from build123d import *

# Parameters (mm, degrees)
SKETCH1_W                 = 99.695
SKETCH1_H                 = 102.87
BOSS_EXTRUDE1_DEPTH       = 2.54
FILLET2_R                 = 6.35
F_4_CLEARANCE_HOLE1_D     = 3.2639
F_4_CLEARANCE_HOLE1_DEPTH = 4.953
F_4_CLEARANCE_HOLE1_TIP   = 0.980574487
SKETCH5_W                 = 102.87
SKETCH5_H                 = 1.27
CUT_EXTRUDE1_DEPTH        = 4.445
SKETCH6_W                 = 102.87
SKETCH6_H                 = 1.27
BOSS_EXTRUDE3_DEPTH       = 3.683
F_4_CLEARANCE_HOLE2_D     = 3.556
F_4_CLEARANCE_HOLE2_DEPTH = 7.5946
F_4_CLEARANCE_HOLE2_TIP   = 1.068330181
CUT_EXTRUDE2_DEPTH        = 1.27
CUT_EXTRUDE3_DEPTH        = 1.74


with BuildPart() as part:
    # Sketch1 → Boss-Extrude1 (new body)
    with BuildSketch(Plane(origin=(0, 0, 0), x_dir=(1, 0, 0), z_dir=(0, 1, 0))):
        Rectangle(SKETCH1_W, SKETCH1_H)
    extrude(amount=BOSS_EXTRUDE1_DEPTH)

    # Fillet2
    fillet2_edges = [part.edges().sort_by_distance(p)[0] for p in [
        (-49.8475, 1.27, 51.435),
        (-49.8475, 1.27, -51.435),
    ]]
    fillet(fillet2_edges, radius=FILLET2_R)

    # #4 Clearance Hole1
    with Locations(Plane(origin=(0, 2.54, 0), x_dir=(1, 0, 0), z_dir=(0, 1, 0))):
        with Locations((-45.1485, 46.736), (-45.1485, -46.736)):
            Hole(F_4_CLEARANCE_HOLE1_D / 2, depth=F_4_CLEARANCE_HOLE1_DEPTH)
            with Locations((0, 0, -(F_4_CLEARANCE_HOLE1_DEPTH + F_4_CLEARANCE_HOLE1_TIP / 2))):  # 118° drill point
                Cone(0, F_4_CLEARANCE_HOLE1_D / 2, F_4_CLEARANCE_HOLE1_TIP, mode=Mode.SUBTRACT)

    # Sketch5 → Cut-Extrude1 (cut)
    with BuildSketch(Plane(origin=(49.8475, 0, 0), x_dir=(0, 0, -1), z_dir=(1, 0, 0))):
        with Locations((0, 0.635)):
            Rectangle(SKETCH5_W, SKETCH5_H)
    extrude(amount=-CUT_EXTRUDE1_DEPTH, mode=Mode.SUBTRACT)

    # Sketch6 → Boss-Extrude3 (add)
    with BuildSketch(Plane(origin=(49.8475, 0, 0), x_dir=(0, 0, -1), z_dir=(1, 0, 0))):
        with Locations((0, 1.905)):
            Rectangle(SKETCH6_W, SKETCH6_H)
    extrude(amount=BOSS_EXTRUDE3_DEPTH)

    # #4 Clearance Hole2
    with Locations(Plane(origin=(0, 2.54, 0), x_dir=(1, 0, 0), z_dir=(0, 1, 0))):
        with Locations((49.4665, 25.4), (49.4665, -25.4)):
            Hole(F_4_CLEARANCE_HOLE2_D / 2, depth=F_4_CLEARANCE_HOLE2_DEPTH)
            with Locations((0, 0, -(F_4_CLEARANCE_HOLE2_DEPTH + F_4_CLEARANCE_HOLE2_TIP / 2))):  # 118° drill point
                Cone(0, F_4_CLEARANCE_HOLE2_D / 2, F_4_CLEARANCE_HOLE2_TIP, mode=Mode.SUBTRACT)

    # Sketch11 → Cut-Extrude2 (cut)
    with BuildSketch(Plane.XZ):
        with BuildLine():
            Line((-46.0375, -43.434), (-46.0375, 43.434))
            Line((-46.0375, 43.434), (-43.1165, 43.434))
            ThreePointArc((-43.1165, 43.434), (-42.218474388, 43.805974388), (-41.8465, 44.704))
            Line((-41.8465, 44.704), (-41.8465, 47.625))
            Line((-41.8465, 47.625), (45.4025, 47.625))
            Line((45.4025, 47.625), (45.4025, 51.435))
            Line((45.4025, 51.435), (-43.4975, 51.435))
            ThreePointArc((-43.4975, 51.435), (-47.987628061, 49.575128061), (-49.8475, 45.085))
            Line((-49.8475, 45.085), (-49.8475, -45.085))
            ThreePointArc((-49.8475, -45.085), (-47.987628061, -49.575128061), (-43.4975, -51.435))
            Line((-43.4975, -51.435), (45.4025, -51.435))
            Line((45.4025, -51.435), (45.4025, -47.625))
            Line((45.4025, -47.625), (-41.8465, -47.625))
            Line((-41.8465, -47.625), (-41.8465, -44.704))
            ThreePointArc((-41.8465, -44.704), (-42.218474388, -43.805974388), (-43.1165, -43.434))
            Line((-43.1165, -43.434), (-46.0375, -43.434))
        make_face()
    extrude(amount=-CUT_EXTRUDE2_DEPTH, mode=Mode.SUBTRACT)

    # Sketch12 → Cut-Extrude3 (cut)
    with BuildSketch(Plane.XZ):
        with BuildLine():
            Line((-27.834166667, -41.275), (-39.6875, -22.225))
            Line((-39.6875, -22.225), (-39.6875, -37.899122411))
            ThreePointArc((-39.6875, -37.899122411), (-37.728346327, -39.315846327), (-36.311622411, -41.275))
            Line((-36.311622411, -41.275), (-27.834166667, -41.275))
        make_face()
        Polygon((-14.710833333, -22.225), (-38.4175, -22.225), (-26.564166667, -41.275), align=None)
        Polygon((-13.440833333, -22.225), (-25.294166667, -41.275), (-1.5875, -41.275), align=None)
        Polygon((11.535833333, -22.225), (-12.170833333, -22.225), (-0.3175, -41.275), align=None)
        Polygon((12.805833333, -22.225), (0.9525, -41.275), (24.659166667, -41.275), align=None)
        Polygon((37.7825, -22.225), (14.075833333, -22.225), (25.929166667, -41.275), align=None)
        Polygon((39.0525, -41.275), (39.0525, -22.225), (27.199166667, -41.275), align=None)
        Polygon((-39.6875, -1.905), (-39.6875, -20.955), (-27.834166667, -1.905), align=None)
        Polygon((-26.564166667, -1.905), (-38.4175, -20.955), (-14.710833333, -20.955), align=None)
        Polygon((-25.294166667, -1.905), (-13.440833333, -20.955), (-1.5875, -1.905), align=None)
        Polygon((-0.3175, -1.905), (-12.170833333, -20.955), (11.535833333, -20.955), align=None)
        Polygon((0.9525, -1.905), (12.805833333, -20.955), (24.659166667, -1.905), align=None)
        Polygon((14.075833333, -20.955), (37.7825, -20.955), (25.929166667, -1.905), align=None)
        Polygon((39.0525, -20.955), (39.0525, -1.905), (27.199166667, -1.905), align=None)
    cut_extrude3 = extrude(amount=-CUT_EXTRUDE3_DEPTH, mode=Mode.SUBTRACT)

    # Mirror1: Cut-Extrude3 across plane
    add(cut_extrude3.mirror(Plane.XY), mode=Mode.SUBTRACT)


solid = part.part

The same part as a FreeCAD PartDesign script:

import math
import FreeCAD as App
import Part
import Sketcher
Q = App.Units.Quantity


def edges_at(feature, points):
    """Names of the edges that pass closest to the given points."""
    edges = feature.Shape.Edges
    near = lambda p: min(range(len(edges)), key=lambda i: edges[i].distToShape(Part.Vertex(*p))[0])
    return sorted({f"Edge{near(p) + 1}" for p in points})

doc = App.newDocument("Part")
body = doc.addObject("PartDesign::Body", "Body")

# Sketch on XZ plane
sketch1 = body.newObject("Sketcher::SketchObject", "Sketch")
sketch1.AttachmentSupport = (doc.getObject("XZ_Plane"), [""])
sketch1.MapMode = "FlatFace"
sketch1.addGeometry([
    Part.LineSegment(App.Vector(-50, -51, 0), App.Vector(-50, 51, 0)),
    Part.LineSegment(App.Vector(-50, 51, 0), App.Vector(50, 51, 0)),
    Part.LineSegment(App.Vector(50, 51, 0), App.Vector(50, -51, 0)),
    Part.LineSegment(App.Vector(50, -51, 0), App.Vector(-50, -51, 0)),
], False)
sketch1.addConstraint([
    Sketcher.Constraint("Coincident", 0, 2, 1, 1),
    Sketcher.Constraint("Coincident", 1, 2, 2, 1),
    Sketcher.Constraint("Coincident", 2, 2, 3, 1),
    Sketcher.Constraint("Coincident", 3, 2, 0, 1),
    Sketcher.Constraint("Vertical", 0),
    Sketcher.Constraint("Horizontal", 1),
    Sketcher.Constraint("Vertical", 2),
    Sketcher.Constraint("Horizontal", 3),
    Sketcher.Constraint("Symmetric", 0, 2, 2, 2, -1, 1),
    Sketcher.Constraint("DistanceY", 0, 1, 0, 2, Q("4.05 in")),
    Sketcher.Constraint("DistanceX", 1, 1, 1, 2, Q("3.925 in")),
])
pad1 = body.newObject("PartDesign::Pad", "Pad")
pad1.Profile = sketch1
pad1.Length = Q("0.1 in")
pad1.Reversed = True
doc.recompute()

fillet = body.newObject("PartDesign::Fillet", "Fillet")
fillet.Base = (pad1, edges_at(pad1, [(-49.847, 1.27, 51.435), (-49.847, 1.27, -51.435)]))
fillet.Radius = Q("0.25 in")

# Sketch on XZ plane
sketch2 = body.newObject("Sketcher::SketchObject", "Sketch001")
sketch2.AttachmentSupport = (doc.getObject("XZ_Plane"), [""])
sketch2.MapMode = "FlatFace"
sketch2.AttachmentOffset = App.Placement(App.Vector(0, 0, -0.1 * 25.4), App.Rotation())
sketch2.addGeometry([
    Part.Circle(App.Vector(-45.1, -46.7, 0), App.Vector(0, 0, 1), 1.6),
    Part.Circle(App.Vector(-45.1, 46.7, 0), App.Vector(0, 0, 1), 1.6),
], False)
sketch2.addConstraint([
    Sketcher.Constraint("Equal", 0, 1),
    Sketcher.Constraint("Symmetric", 0, 3, 1, 3, -1),
    Sketcher.Constraint("Diameter", 0, Q("0.1285 in")),
    Sketcher.Constraint("DistanceY", 0, 3, -1, 1, Q("1.84 in")),
    Sketcher.Constraint("DistanceX", 0, 3, -1, 1, Q("1.7775 in")),
])
doc.recompute()
hole = body.newObject("PartDesign::Hole", "Hole")
hole.Profile = sketch2
hole.ThreadType = "None"
hole.Diameter = Q("0.1285 in")
hole.DepthType = "Dimension"
hole.Depth = Q("0.195 in")
hole.DrillPoint = "Angled"
hole.DrillPointAngle = 118
hole.Reversed = True

# Sketch on YZ plane
sketch3 = body.newObject("Sketcher::SketchObject", "Sketch002")
sketch3.AttachmentSupport = (doc.getObject("YZ_Plane"), [""])
sketch3.MapMode = "FlatFace"
sketch3.AttachmentOffset = App.Placement(App.Vector(0, 0, 1.9625 * 25.4), App.Rotation())
sketch3.addGeometry([
    Part.LineSegment(App.Vector(1.3, 51.4, 0), App.Vector(0, 51.4, 0)),
    Part.LineSegment(App.Vector(0, 51.4, 0), App.Vector(0, -51.4, 0)),
    Part.LineSegment(App.Vector(0, -51.4, 0), App.Vector(1.3, -51.4, 0)),
    Part.LineSegment(App.Vector(1.3, -51.4, 0), App.Vector(1.3, 51.4, 0)),
], False)
sketch3.addConstraint([
    Sketcher.Constraint("Coincident", 0, 2, 1, 1),
    Sketcher.Constraint("Coincident", 1, 2, 2, 1),
    Sketcher.Constraint("Coincident", 2, 2, 3, 1),
    Sketcher.Constraint("Coincident", 3, 2, 0, 1),
    Sketcher.Constraint("Horizontal", 0),
    Sketcher.Constraint("Vertical", 1),
    Sketcher.Constraint("Horizontal", 2),
    Sketcher.Constraint("Vertical", 3),
    Sketcher.Constraint("Symmetric", 0, 2, 1, 2, -1, 1),
    Sketcher.Constraint("DistanceX", 0, 2, 0, 1, Q("0.05 in")),
    Sketcher.Constraint("DistanceY", 1, 2, 1, 1, Q("4.05 in")),
])
pocket1 = body.newObject("PartDesign::Pocket", "Pocket")
pocket1.Profile = sketch3
pocket1.Length = Q("0.175 in")

# Sketch on YZ plane
sketch4 = body.newObject("Sketcher::SketchObject", "Sketch003")
sketch4.AttachmentSupport = (doc.getObject("YZ_Plane"), [""])
sketch4.MapMode = "FlatFace"
sketch4.AttachmentOffset = App.Placement(App.Vector(0, 0, 1.9625 * 25.4), App.Rotation())
sketch4.addGeometry([
    Part.LineSegment(App.Vector(2.5, 51.4, 0), App.Vector(1.3, 51.4, 0)),
    Part.LineSegment(App.Vector(1.3, 51.4, 0), App.Vector(1.3, -51.4, 0)),
    Part.LineSegment(App.Vector(1.3, -51.4, 0), App.Vector(2.5, -51.4, 0)),
    Part.LineSegment(App.Vector(2.5, -51.4, 0), App.Vector(2.5, 51.4, 0)),
], False)
sketch4.addConstraint([
    Sketcher.Constraint("Coincident", 0, 2, 1, 1),
    Sketcher.Constraint("Coincident", 1, 2, 2, 1),
    Sketcher.Constraint("Coincident", 2, 2, 3, 1),
    Sketcher.Constraint("Coincident", 3, 2, 0, 1),
    Sketcher.Constraint("Horizontal", 0),
    Sketcher.Constraint("Vertical", 1),
    Sketcher.Constraint("Horizontal", 2),
    Sketcher.Constraint("Vertical", 3),
    Sketcher.Constraint("DistanceX", 0, 2, 0, 1, Q("0.05 in")),
    Sketcher.Constraint("DistanceY", 1, 2, 1, 1, Q("4.05 in")),
    Sketcher.Constraint("DistanceX", -1, 1, 2, 2, Q("0.1 in")),
    Sketcher.Constraint("DistanceY", -1, 1, 0, 2, Q("2.025 in")),
])
pad2 = body.newObject("PartDesign::Pad", "Pad001")
pad2.Profile = sketch4
pad2.Length = Q("0.145 in")

# Sketch on XZ plane
sketch5 = body.newObject("Sketcher::SketchObject", "Sketch004")
sketch5.AttachmentSupport = (doc.getObject("XZ_Plane"), [""])
sketch5.MapMode = "FlatFace"
sketch5.AttachmentOffset = App.Placement(App.Vector(0, 0, -0.1 * 25.4), App.Rotation())
sketch5.addGeometry([
    Part.Circle(App.Vector(49.5, -25.4, 0), App.Vector(0, 0, 1), 1.8),
    Part.Circle(App.Vector(49.5, 25.4, 0), App.Vector(0, 0, 1), 1.8),
], False)
sketch5.addConstraint([
    Sketcher.Constraint("Equal", 0, 1),
    Sketcher.Constraint("Symmetric", 0, 3, 1, 3, -1),
    Sketcher.Constraint("Diameter", 0, Q("0.14 in")),
    Sketcher.Constraint("DistanceY", 0, 3, -1, 1, Q("1 in")),
    Sketcher.Constraint("DistanceX", -1, 1, 0, 3, Q("1.9475 in")),
])
doc.recompute()
hole2 = body.newObject("PartDesign::Hole", "Hole001")
hole2.Profile = sketch5
hole2.ThreadType = "None"
hole2.Diameter = Q("0.14 in")
hole2.DepthType = "Dimension"
hole2.Depth = Q("0.299 in")
hole2.DrillPoint = "Angled"
hole2.DrillPointAngle = 118
hole2.Reversed = True

# Sketch on XZ plane
sketch6 = body.newObject("Sketcher::SketchObject", "Sketch005")
sketch6.AttachmentSupport = (doc.getObject("XZ_Plane"), [""])
sketch6.MapMode = "FlatFace"
sketch6.addGeometry([
    Part.LineSegment(App.Vector(-46, -43.4, 0), App.Vector(-46, 43.4, 0)),  # 0
    Part.LineSegment(App.Vector(-46, 43.4, 0), App.Vector(-43.1, 43.4, 0)),  # 1
    Part.ArcOfCircle(Part.Circle(App.Vector(-43.1, 44.7, 0), App.Vector(0, 0, 1), 1.3), math.radians(-90), math.radians(0)),  # 2
    Part.LineSegment(App.Vector(-41.8, 44.7, 0), App.Vector(-41.8, 47.6, 0)),  # 3
    Part.LineSegment(App.Vector(-41.8, 47.6, 0), App.Vector(45.4, 47.6, 0)),  # 4
    Part.LineSegment(App.Vector(45.4, 47.6, 0), App.Vector(45.4, 51.4, 0)),  # 5
    Part.LineSegment(App.Vector(45.4, 51.4, 0), App.Vector(-43.5, 51.4, 0)),  # 6
    Part.ArcOfCircle(Part.Circle(App.Vector(-43.5, 45.1, 0), App.Vector(0, 0, 1), 6.3), math.radians(90), math.radians(180)),  # 7
    Part.LineSegment(App.Vector(-49.8, 45.1, 0), App.Vector(-49.8, -45.1, 0)),  # 8
    Part.ArcOfCircle(Part.Circle(App.Vector(-43.5, -45.1, 0), App.Vector(0, 0, 1), 6.3), math.radians(180), math.radians(270)),  # 9
    Part.LineSegment(App.Vector(-43.5, -51.4, 0), App.Vector(45.4, -51.4, 0)),  # 10
    Part.LineSegment(App.Vector(45.4, -51.4, 0), App.Vector(45.4, -47.6, 0)),  # 11
    Part.LineSegment(App.Vector(45.4, -47.6, 0), App.Vector(-41.8, -47.6, 0)),  # 12
    Part.LineSegment(App.Vector(-41.8, -47.6, 0), App.Vector(-41.8, -44.7, 0)),  # 13
    Part.ArcOfCircle(Part.Circle(App.Vector(-43.1, -44.7, 0), App.Vector(0, 0, 1), 1.3), math.radians(0), math.radians(90)),  # 14
    Part.LineSegment(App.Vector(-43.1, -43.4, 0), App.Vector(-46, -43.4, 0)),  # 15
], False)
sketch6.addConstraint([
    Sketcher.Constraint("Coincident", 0, 2, 1, 1),
    Sketcher.Constraint("Tangent", 1, 2, 2, 1),
    Sketcher.Constraint("Tangent", 2, 2, 3, 1),
    Sketcher.Constraint("Coincident", 3, 2, 4, 1),
    Sketcher.Constraint("Coincident", 4, 2, 5, 1),
    Sketcher.Constraint("Coincident", 5, 2, 6, 1),
    Sketcher.Constraint("Tangent", 6, 2, 7, 1),
    Sketcher.Constraint("Tangent", 7, 2, 8, 1),
    Sketcher.Constraint("Tangent", 8, 2, 9, 1),
    Sketcher.Constraint("Tangent", 9, 2, 10, 1),
    Sketcher.Constraint("Coincident", 10, 2, 11, 1),
    Sketcher.Constraint("Coincident", 11, 2, 12, 1),
    Sketcher.Constraint("Coincident", 12, 2, 13, 1),
    Sketcher.Constraint("Tangent", 13, 2, 14, 1),
    Sketcher.Constraint("Tangent", 14, 2, 15, 1),
    Sketcher.Constraint("Coincident", 15, 2, 0, 1),
    Sketcher.Constraint("Vertical", 0),
    Sketcher.Constraint("Horizontal", 1),
    Sketcher.Constraint("Vertical", 3),
    Sketcher.Constraint("Horizontal", 4),
    Sketcher.Constraint("Vertical", 5),
    Sketcher.Constraint("Horizontal", 6),
    Sketcher.Constraint("Vertical", 8),
    Sketcher.Constraint("Horizontal", 10),
    Sketcher.Constraint("Vertical", 11),
    Sketcher.Constraint("Horizontal", 12),
    Sketcher.Constraint("Vertical", 13),
    Sketcher.Constraint("Horizontal", 15),
    Sketcher.Constraint("Equal", 7, 9),
    Sketcher.Constraint("Equal", 2, 14),
    Sketcher.Constraint("Symmetric", 2, 3, 14, 3, -1),
    Sketcher.Constraint("Symmetric", 5, 2, 10, 2, -1),
    Sketcher.Constraint("Equal", 15, 3),
    Sketcher.Constraint("Equal", 5, 11),
    Sketcher.Constraint("Radius", 2, Q("0.05 in")),
    Sketcher.Constraint("Radius", 7, Q("0.25 in")),
    Sketcher.Constraint("DistanceX", 6, 2, 6, 1, Q("3.5 in")),
    Sketcher.Constraint("DistanceY", 0, 1, 0, 2, Q("3.42 in")),
    Sketcher.Constraint("DistanceY", 5, 1, 5, 2, Q("0.15 in")),
    Sketcher.Constraint("DistanceY", 8, 2, 8, 1, Q("3.55 in")),
    Sketcher.Constraint("DistanceX", 0, 2, 7, 3, Q("0.1 in")),
    Sketcher.Constraint("DistanceX", 0, 2, -1, 1, Q("1.8125 in")),
])
pocket2 = body.newObject("PartDesign::Pocket", "Pocket001")
pocket2.Profile = sketch6
pocket2.Length = Q("0.05 in")

# Sketch on XZ plane
sketch7 = body.newObject("Sketcher::SketchObject", "Sketch006")
sketch7.AttachmentSupport = (doc.getObject("XZ_Plane"), [""])
sketch7.MapMode = "FlatFace"
sketch7.addGeometry([
    Part.LineSegment(App.Vector(-27.8, -41.3, 0), App.Vector(-39.7, -22.2, 0)),  # 0
    Part.LineSegment(App.Vector(-39.7, -22.2, 0), App.Vector(-39.7, -37.9, 0)),  # 1
    Part.ArcOfCircle(Part.Circle(App.Vector(-43.1, -44.7, 0), App.Vector(0, 0, 1), 7.6), math.radians(27), math.radians(63)),  # 2
    Part.LineSegment(App.Vector(-36.3, -41.3, 0), App.Vector(-27.8, -41.3, 0)),  # 3
    Part.LineSegment(App.Vector(-14.7, -22.2, 0), App.Vector(-38.4, -22.2, 0)),  # 4
    Part.LineSegment(App.Vector(-38.4, -22.2, 0), App.Vector(-26.6, -41.3, 0)),  # 5
    Part.LineSegment(App.Vector(-26.6, -41.3, 0), App.Vector(-14.7, -22.2, 0)),  # 6
    Part.LineSegment(App.Vector(-13.4, -22.2, 0), App.Vector(-25.3, -41.3, 0)),  # 7
    Part.LineSegment(App.Vector(-25.3, -41.3, 0), App.Vector(-1.6, -41.3, 0)),  # 8
    Part.LineSegment(App.Vector(-1.6, -41.3, 0), App.Vector(-13.4, -22.2, 0)),  # 9
    Part.LineSegment(App.Vector(11.5, -22.2, 0), App.Vector(-12.2, -22.2, 0)),  # 10
    Part.LineSegment(App.Vector(-12.2, -22.2, 0), App.Vector(-0.3, -41.3, 0)),  # 11
    Part.LineSegment(App.Vector(-0.3, -41.3, 0), App.Vector(11.5, -22.2, 0)),  # 12
    Part.LineSegment(App.Vector(12.8, -22.2, 0), App.Vector(1, -41.3, 0)),  # 13
    Part.LineSegment(App.Vector(1, -41.3, 0), App.Vector(24.7, -41.3, 0)),  # 14
    Part.LineSegment(App.Vector(24.7, -41.3, 0), App.Vector(12.8, -22.2, 0)),  # 15
    Part.LineSegment(App.Vector(37.8, -22.2, 0), App.Vector(14.1, -22.2, 0)),  # 16
    Part.LineSegment(App.Vector(14.1, -22.2, 0), App.Vector(25.9, -41.3, 0)),  # 17
    Part.LineSegment(App.Vector(25.9, -41.3, 0), App.Vector(37.8, -22.2, 0)),  # 18
    Part.LineSegment(App.Vector(39.1, -41.3, 0), App.Vector(39.1, -22.2, 0)),  # 19
    Part.LineSegment(App.Vector(39.1, -22.2, 0), App.Vector(27.2, -41.3, 0)),  # 20
    Part.LineSegment(App.Vector(27.2, -41.3, 0), App.Vector(39.1, -41.3, 0)),  # 21
    Part.LineSegment(App.Vector(-39.7, -1.9, 0), App.Vector(-39.7, -21, 0)),  # 22
    Part.LineSegment(App.Vector(-39.7, -21, 0), App.Vector(-27.8, -1.9, 0)),  # 23
    Part.LineSegment(App.Vector(-27.8, -1.9, 0), App.Vector(-39.7, -1.9, 0)),  # 24
    Part.LineSegment(App.Vector(-26.6, -1.9, 0), App.Vector(-38.4, -21, 0)),  # 25
    Part.LineSegment(App.Vector(-38.4, -21, 0), App.Vector(-14.7, -21, 0)),  # 26
    Part.LineSegment(App.Vector(-14.7, -21, 0), App.Vector(-26.6, -1.9, 0)),  # 27
    Part.LineSegment(App.Vector(-25.3, -1.9, 0), App.Vector(-13.4, -21, 0)),  # 28
    Part.LineSegment(App.Vector(-13.4, -21, 0), App.Vector(-1.6, -1.9, 0)),  # 29
    Part.LineSegment(App.Vector(-1.6, -1.9, 0), App.Vector(-25.3, -1.9, 0)),  # 30
    Part.LineSegment(App.Vector(-0.3, -1.9, 0), App.Vector(-12.2, -21, 0)),  # 31
    Part.LineSegment(App.Vector(-12.2, -21, 0), App.Vector(11.5, -21, 0)),  # 32
    Part.LineSegment(App.Vector(11.5, -21, 0), App.Vector(-0.3, -1.9, 0)),  # 33
    Part.LineSegment(App.Vector(1, -1.9, 0), App.Vector(12.8, -21, 0)),  # 34
    Part.LineSegment(App.Vector(12.8, -21, 0), App.Vector(24.7, -1.9, 0)),  # 35
    Part.LineSegment(App.Vector(24.7, -1.9, 0), App.Vector(1, -1.9, 0)),  # 36
    Part.LineSegment(App.Vector(14.1, -21, 0), App.Vector(37.8, -21, 0)),  # 37
    Part.LineSegment(App.Vector(37.8, -21, 0), App.Vector(25.9, -1.9, 0)),  # 38
    Part.LineSegment(App.Vector(25.9, -1.9, 0), App.Vector(14.1, -21, 0)),  # 39
    Part.LineSegment(App.Vector(39.1, -21, 0), App.Vector(39.1, -1.9, 0)),  # 40
    Part.LineSegment(App.Vector(39.1, -1.9, 0), App.Vector(27.2, -1.9, 0)),  # 41
    Part.LineSegment(App.Vector(27.2, -1.9, 0), App.Vector(39.1, -21, 0)),  # 42
], False)
sketch7.addConstraint([
    Sketcher.Constraint("Coincident", 0, 2, 1, 1),
    Sketcher.Constraint("Coincident", 1, 2, 2, 2),
    Sketcher.Constraint("Coincident", 2, 1, 3, 1),
    Sketcher.Constraint("Coincident", 3, 2, 0, 1),
    Sketcher.Constraint("Coincident", 4, 2, 5, 1),
    Sketcher.Constraint("Coincident", 5, 2, 6, 1),
    Sketcher.Constraint("Coincident", 6, 2, 4, 1),
    Sketcher.Constraint("Coincident", 7, 2, 8, 1),
    Sketcher.Constraint("Coincident", 8, 2, 9, 1),
    Sketcher.Constraint("Coincident", 9, 2, 7, 1),
    Sketcher.Constraint("Coincident", 10, 2, 11, 1),
    Sketcher.Constraint("Coincident", 11, 2, 12, 1),
    Sketcher.Constraint("Coincident", 12, 2, 10, 1),
    Sketcher.Constraint("Coincident", 13, 2, 14, 1),
    Sketcher.Constraint("Coincident", 14, 2, 15, 1),
    Sketcher.Constraint("Coincident", 15, 2, 13, 1),
    Sketcher.Constraint("Coincident", 16, 2, 17, 1),
    Sketcher.Constraint("Coincident", 17, 2, 18, 1),
    Sketcher.Constraint("Coincident", 18, 2, 16, 1),
    Sketcher.Constraint("Coincident", 19, 2, 20, 1),
    Sketcher.Constraint("Coincident", 20, 2, 21, 1),
    Sketcher.Constraint("Coincident", 21, 2, 19, 1),
    Sketcher.Constraint("Coincident", 22, 2, 23, 1),
    Sketcher.Constraint("Coincident", 23, 2, 24, 1),
    Sketcher.Constraint("Coincident", 24, 2, 22, 1),
    Sketcher.Constraint("Coincident", 25, 2, 26, 1),
    Sketcher.Constraint("Coincident", 26, 2, 27, 1),
    Sketcher.Constraint("Coincident", 27, 2, 25, 1),
    Sketcher.Constraint("Coincident", 28, 2, 29, 1),
    Sketcher.Constraint("Coincident", 29, 2, 30, 1),
    Sketcher.Constraint("Coincident", 30, 2, 28, 1),
    Sketcher.Constraint("Coincident", 31, 2, 32, 1),
    Sketcher.Constraint("Coincident", 32, 2, 33, 1),
    Sketcher.Constraint("Coincident", 33, 2, 31, 1),
    Sketcher.Constraint("Coincident", 34, 2, 35, 1),
    Sketcher.Constraint("Coincident", 35, 2, 36, 1),
    Sketcher.Constraint("Coincident", 36, 2, 34, 1),
    Sketcher.Constraint("Coincident", 37, 2, 38, 1),
    Sketcher.Constraint("Coincident", 38, 2, 39, 1),
    Sketcher.Constraint("Coincident", 39, 2, 37, 1),
    Sketcher.Constraint("Coincident", 40, 2, 41, 1),
    Sketcher.Constraint("Coincident", 41, 2, 42, 1),
    Sketcher.Constraint("Coincident", 42, 2, 40, 1),
    Sketcher.Constraint("Vertical", 1),
    Sketcher.Constraint("Horizontal", 3),
    Sketcher.Constraint("Horizontal", 4),
    Sketcher.Constraint("Horizontal", 8),
    Sketcher.Constraint("Horizontal", 10),
    Sketcher.Constraint("Horizontal", 14),
    Sketcher.Constraint("Horizontal", 16),
    Sketcher.Constraint("Vertical", 19),
    Sketcher.Constraint("Horizontal", 21),
    Sketcher.Constraint("Vertical", 22),
    Sketcher.Constraint("Horizontal", 24),
    Sketcher.Constraint("Horizontal", 26),
    Sketcher.Constraint("Horizontal", 30),
    Sketcher.Constraint("Horizontal", 32),
    Sketcher.Constraint("Horizontal", 36),
    Sketcher.Constraint("Horizontal", 37),
    Sketcher.Constraint("Vertical", 40),
    Sketcher.Constraint("Horizontal", 41),
    Sketcher.Constraint("Parallel", 0, 5),
    Sketcher.Constraint("Parallel", 6, 7),
    Sketcher.Constraint("Parallel", 5, 9),
    Sketcher.Constraint("Parallel", 9, 11),
    Sketcher.Constraint("Parallel", 7, 12),
    Sketcher.Constraint("Parallel", 12, 13),
    Sketcher.Constraint("Parallel", 11, 15),
    Sketcher.Constraint("Parallel", 15, 17),
    Sketcher.Constraint("Parallel", 13, 18),
    Sketcher.Constraint("Parallel", 18, 20),
    Sketcher.Constraint("Parallel", 20, 23),
    Sketcher.Constraint("Parallel", 23, 25),
    Sketcher.Constraint("Parallel", 17, 27),
    Sketcher.Constraint("Parallel", 27, 28),
    Sketcher.Constraint("Parallel", 25, 29),
    Sketcher.Constraint("Parallel", 29, 31),
    Sketcher.Constraint("Parallel", 28, 33),
    Sketcher.Constraint("Parallel", 33, 34),
    Sketcher.Constraint("Parallel", 31, 35),
    Sketcher.Constraint("Parallel", 34, 38),
    Sketcher.Constraint("Parallel", 35, 39),
    Sketcher.Constraint("Parallel", 38, 42),
    Sketcher.Constraint("Horizontal", 0, 2, 4, 2),
    Sketcher.Constraint("Horizontal", 3, 2, 5, 2),
    Sketcher.Constraint("Horizontal", 5, 2, 7, 2),
    Sketcher.Constraint("Horizontal", 6, 2, 9, 2),
    Sketcher.Constraint("Horizontal", 9, 2, 10, 2),
    Sketcher.Constraint("Horizontal", 8, 2, 11, 2),
    Sketcher.Constraint("Horizontal", 11, 2, 13, 2),
    Sketcher.Constraint("Horizontal", 12, 2, 15, 2),
    Sketcher.Constraint("Horizontal", 15, 2, 16, 2),
    Sketcher.Constraint("Horizontal", 14, 2, 17, 2),
    Sketcher.Constraint("Horizontal", 18, 2, 19, 2),
    Sketcher.Constraint("Horizontal", 17, 2, 20, 2),
    Sketcher.Constraint("Horizontal", 22, 2, 25, 2),
    Sketcher.Constraint("Horizontal", 24, 2, 27, 2),
    Sketcher.Constraint("Horizontal", 26, 2, 28, 2),
    Sketcher.Constraint("Horizontal", 27, 2, 29, 2),
    Sketcher.Constraint("Horizontal", 28, 2, 31, 2),
    Sketcher.Constraint("Horizontal", 30, 2, 33, 2),
    Sketcher.Constraint("Horizontal", 32, 2, 34, 2),
    Sketcher.Constraint("Horizontal", 33, 2, 35, 2),
    Sketcher.Constraint("Horizontal", 34, 2, 37, 2),
    Sketcher.Constraint("Horizontal", 36, 2, 38, 2),
    Sketcher.Constraint("Horizontal", 38, 2, 40, 2),
    Sketcher.Constraint("Horizontal", 39, 2, 42, 2),
    Sketcher.Constraint("Vertical", 1, 2, 22, 2),
    Sketcher.Constraint("Vertical", 3, 2, 23, 2),
    Sketcher.Constraint("Vertical", 4, 2, 25, 2),
    Sketcher.Constraint("Vertical", 6, 2, 26, 2),
    Sketcher.Constraint("Vertical", 9, 2, 28, 2),
    Sketcher.Constraint("Vertical", 10, 2, 31, 2),
    Sketcher.Constraint("Vertical", 15, 2, 34, 2),
    Sketcher.Constraint("Vertical", 18, 2, 37, 2),
    Sketcher.Constraint("Vertical", 21, 2, 40, 2),
    Sketcher.Constraint("Radius", 2, Q("0.3 in")),
    Sketcher.Constraint("DistanceY", 19, 1, 19, 2, Q("0.75 in")),
    Sketcher.Constraint("DistanceX", 3, 2, 7, 2, Q("0.1 in")),
    Sketcher.Constraint("DistanceX", 6, 2, 10, 2, Q("0.1 in")),
    Sketcher.Constraint("DistanceX", 8, 2, 13, 2, Q("0.1 in")),
    Sketcher.Constraint("DistanceX", 12, 2, 16, 2, Q("0.1 in")),
    Sketcher.Constraint("DistanceX", 14, 2, 20, 2, Q("0.1 in")),
    Sketcher.Constraint("DistanceY", 2, 1, 22, 2, Q("0.8 in")),
    Sketcher.Constraint("DistanceY", 2, 3, -1, 1, Q("1.76 in")),
    Sketcher.Constraint("DistanceX", 0, 2, 4, 2, Q("0.05 in")),
    Sketcher.Constraint("DistanceX", 10, 2, 14, 2, Q("1.45 in")),
    Sketcher.Constraint("DistanceX", 0, 2, -1, 1, Q("1.5625 in")),
    Sketcher.Constraint("DistanceY", 0, 2, -1, 1, Q("0.875 in")),
    Sketcher.Constraint("DistanceX", 2, 3, 0, 2, Q("0.135 in")),
])
pocket3 = body.newObject("PartDesign::Pocket", "Pocket002")
pocket3.Profile = sketch7
pocket3.Length = 1.74
doc.recompute()

mirrored = body.newObject("PartDesign::Mirrored", "Mirrored")
mirrored.Originals = [pocket3]
mirrored.MirrorPlane = (doc.getObject("XY_Plane"), [""])
body.Tip = mirrored

doc.recompute()
